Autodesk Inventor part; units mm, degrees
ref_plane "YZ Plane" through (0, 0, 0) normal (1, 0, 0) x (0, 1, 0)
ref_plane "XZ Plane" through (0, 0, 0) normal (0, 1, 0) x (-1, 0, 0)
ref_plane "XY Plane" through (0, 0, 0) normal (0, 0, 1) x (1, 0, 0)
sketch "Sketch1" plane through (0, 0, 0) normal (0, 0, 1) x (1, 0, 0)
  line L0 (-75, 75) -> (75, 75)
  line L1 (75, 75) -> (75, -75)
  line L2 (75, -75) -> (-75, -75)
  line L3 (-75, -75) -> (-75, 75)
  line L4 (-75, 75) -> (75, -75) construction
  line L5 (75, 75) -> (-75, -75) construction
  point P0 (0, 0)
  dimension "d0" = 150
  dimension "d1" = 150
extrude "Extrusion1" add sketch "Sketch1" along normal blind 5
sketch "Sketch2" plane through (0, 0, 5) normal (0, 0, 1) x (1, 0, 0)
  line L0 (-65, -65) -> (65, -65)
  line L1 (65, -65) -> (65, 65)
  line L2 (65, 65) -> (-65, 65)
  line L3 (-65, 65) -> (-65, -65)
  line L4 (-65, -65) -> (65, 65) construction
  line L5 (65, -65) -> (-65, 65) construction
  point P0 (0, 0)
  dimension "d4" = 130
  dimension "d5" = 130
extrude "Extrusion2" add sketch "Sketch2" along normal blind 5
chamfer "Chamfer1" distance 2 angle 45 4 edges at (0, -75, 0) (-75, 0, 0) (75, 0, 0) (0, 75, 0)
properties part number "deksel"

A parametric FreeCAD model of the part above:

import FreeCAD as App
import Part
import Sketcher
Q = App.Units.Quantity


def edges_at(feature, points):
    """Names of the edges that pass closest to the given points."""
    edges = feature.Shape.Edges
    near = lambda p: min(range(len(edges)), key=lambda i: edges[i].distToShape(Part.Vertex(*p))[0])
    return sorted({f"Edge{near(p) + 1}" for p in points})


def add_polygon(sketch, points):
    """Adds a closed chain of lines whose ends are joined by coincident constraints."""
    first, n = sketch.GeometryCount, len(points)
    for a, b in zip(points, points[1:] + points[:1]):
        sketch.addGeometry(Part.LineSegment(App.Vector(*a, 0), App.Vector(*b, 0)), False)
    for i in range(n):
        sketch.addConstraint(Sketcher.Constraint("Coincident", first + i, 2, first + (i + 1) % n, 1))

doc = App.newDocument("Part")
params = doc.addObject("Spreadsheet::Sheet", "Params")
for row, (alias, value) in enumerate([
    ("sketch1_width", "150 mm"),
    ("pad1_length", "5 mm"),
    ("sketch2_width", "130 mm"),
    ("pad2_length", "5 mm"),
    ("chamfer_size", "2 mm"),
], start=1):
    params.set(f"A{row}", alias)
    params.set(f"B{row}", "=" + value)
    params.setAlias(f"B{row}", alias)

body = doc.addObject("PartDesign::Body", "Body")

sketch1 = body.newObject("Sketcher::SketchObject", "Sketch")
sketch1.AttachmentSupport = (doc.getObject("XY_Plane"), [""])
sketch1.MapMode = "FlatFace"
add_polygon(sketch1, [(75, 75), (-75, 75), (-75, -75), (75, -75)])
sketch1.addConstraint([
    Sketcher.Constraint("Horizontal", 0),
    Sketcher.Constraint("Vertical", 1),
    Sketcher.Constraint("Horizontal", 2),
    Sketcher.Constraint("Vertical", 3),
    Sketcher.Constraint("Symmetric", 0, 2, 2, 2, -1, 1),
    Sketcher.Constraint("Equal", 2, 1),
    Sketcher.Constraint("DistanceX", 0, 2, 0, 1, Q("150 mm")),
])
sketch1.setExpression("Constraints[10]", "Params.sketch1_width")
pad1 = body.newObject("PartDesign::Pad", "Pad")
pad1.Profile = sketch1
pad1.setExpression("Length", "Params.pad1_length")

sketch2 = body.newObject("Sketcher::SketchObject", "Sketch001")
sketch2.AttachmentSupport = (doc.getObject("XY_Plane"), [""])
sketch2.MapMode = "FlatFace"
sketch2.AttachmentOffset = App.Placement(App.Vector(0, 0, 5), App.Rotation())
add_polygon(sketch2, [(-65, 65), (-65, -65), (65, -65), (65, 65)])
sketch2.addConstraint([
    Sketcher.Constraint("Vertical", 0),
    Sketcher.Constraint("Horizontal", 1),
    Sketcher.Constraint("Vertical", 2),
    Sketcher.Constraint("Horizontal", 3),
    Sketcher.Constraint("Symmetric", 0, 2, 2, 2, -1, 1),
    Sketcher.Constraint("Equal", 3, 0),
    Sketcher.Constraint("DistanceX", 1, 1, 1, 2, Q("130 mm")),
])
sketch2.setExpression("Constraints[10]", "Params.sketch2_width")
pad2 = body.newObject("PartDesign::Pad", "Pad001")
pad2.Profile = sketch2
pad2.setExpression("Length", "Params.pad2_length")
doc.recompute()

chamfer = body.newObject("PartDesign::Chamfer", "Chamfer")
chamfer.Base = (pad2, edges_at(pad2, [
    (0, -75, 0),
    (-75, 0, 0),
    (75, 0, 0),
    (0, 75, 0),
]))
chamfer.setExpression("Size", "Params.chamfer_size")

doc.recompute()
